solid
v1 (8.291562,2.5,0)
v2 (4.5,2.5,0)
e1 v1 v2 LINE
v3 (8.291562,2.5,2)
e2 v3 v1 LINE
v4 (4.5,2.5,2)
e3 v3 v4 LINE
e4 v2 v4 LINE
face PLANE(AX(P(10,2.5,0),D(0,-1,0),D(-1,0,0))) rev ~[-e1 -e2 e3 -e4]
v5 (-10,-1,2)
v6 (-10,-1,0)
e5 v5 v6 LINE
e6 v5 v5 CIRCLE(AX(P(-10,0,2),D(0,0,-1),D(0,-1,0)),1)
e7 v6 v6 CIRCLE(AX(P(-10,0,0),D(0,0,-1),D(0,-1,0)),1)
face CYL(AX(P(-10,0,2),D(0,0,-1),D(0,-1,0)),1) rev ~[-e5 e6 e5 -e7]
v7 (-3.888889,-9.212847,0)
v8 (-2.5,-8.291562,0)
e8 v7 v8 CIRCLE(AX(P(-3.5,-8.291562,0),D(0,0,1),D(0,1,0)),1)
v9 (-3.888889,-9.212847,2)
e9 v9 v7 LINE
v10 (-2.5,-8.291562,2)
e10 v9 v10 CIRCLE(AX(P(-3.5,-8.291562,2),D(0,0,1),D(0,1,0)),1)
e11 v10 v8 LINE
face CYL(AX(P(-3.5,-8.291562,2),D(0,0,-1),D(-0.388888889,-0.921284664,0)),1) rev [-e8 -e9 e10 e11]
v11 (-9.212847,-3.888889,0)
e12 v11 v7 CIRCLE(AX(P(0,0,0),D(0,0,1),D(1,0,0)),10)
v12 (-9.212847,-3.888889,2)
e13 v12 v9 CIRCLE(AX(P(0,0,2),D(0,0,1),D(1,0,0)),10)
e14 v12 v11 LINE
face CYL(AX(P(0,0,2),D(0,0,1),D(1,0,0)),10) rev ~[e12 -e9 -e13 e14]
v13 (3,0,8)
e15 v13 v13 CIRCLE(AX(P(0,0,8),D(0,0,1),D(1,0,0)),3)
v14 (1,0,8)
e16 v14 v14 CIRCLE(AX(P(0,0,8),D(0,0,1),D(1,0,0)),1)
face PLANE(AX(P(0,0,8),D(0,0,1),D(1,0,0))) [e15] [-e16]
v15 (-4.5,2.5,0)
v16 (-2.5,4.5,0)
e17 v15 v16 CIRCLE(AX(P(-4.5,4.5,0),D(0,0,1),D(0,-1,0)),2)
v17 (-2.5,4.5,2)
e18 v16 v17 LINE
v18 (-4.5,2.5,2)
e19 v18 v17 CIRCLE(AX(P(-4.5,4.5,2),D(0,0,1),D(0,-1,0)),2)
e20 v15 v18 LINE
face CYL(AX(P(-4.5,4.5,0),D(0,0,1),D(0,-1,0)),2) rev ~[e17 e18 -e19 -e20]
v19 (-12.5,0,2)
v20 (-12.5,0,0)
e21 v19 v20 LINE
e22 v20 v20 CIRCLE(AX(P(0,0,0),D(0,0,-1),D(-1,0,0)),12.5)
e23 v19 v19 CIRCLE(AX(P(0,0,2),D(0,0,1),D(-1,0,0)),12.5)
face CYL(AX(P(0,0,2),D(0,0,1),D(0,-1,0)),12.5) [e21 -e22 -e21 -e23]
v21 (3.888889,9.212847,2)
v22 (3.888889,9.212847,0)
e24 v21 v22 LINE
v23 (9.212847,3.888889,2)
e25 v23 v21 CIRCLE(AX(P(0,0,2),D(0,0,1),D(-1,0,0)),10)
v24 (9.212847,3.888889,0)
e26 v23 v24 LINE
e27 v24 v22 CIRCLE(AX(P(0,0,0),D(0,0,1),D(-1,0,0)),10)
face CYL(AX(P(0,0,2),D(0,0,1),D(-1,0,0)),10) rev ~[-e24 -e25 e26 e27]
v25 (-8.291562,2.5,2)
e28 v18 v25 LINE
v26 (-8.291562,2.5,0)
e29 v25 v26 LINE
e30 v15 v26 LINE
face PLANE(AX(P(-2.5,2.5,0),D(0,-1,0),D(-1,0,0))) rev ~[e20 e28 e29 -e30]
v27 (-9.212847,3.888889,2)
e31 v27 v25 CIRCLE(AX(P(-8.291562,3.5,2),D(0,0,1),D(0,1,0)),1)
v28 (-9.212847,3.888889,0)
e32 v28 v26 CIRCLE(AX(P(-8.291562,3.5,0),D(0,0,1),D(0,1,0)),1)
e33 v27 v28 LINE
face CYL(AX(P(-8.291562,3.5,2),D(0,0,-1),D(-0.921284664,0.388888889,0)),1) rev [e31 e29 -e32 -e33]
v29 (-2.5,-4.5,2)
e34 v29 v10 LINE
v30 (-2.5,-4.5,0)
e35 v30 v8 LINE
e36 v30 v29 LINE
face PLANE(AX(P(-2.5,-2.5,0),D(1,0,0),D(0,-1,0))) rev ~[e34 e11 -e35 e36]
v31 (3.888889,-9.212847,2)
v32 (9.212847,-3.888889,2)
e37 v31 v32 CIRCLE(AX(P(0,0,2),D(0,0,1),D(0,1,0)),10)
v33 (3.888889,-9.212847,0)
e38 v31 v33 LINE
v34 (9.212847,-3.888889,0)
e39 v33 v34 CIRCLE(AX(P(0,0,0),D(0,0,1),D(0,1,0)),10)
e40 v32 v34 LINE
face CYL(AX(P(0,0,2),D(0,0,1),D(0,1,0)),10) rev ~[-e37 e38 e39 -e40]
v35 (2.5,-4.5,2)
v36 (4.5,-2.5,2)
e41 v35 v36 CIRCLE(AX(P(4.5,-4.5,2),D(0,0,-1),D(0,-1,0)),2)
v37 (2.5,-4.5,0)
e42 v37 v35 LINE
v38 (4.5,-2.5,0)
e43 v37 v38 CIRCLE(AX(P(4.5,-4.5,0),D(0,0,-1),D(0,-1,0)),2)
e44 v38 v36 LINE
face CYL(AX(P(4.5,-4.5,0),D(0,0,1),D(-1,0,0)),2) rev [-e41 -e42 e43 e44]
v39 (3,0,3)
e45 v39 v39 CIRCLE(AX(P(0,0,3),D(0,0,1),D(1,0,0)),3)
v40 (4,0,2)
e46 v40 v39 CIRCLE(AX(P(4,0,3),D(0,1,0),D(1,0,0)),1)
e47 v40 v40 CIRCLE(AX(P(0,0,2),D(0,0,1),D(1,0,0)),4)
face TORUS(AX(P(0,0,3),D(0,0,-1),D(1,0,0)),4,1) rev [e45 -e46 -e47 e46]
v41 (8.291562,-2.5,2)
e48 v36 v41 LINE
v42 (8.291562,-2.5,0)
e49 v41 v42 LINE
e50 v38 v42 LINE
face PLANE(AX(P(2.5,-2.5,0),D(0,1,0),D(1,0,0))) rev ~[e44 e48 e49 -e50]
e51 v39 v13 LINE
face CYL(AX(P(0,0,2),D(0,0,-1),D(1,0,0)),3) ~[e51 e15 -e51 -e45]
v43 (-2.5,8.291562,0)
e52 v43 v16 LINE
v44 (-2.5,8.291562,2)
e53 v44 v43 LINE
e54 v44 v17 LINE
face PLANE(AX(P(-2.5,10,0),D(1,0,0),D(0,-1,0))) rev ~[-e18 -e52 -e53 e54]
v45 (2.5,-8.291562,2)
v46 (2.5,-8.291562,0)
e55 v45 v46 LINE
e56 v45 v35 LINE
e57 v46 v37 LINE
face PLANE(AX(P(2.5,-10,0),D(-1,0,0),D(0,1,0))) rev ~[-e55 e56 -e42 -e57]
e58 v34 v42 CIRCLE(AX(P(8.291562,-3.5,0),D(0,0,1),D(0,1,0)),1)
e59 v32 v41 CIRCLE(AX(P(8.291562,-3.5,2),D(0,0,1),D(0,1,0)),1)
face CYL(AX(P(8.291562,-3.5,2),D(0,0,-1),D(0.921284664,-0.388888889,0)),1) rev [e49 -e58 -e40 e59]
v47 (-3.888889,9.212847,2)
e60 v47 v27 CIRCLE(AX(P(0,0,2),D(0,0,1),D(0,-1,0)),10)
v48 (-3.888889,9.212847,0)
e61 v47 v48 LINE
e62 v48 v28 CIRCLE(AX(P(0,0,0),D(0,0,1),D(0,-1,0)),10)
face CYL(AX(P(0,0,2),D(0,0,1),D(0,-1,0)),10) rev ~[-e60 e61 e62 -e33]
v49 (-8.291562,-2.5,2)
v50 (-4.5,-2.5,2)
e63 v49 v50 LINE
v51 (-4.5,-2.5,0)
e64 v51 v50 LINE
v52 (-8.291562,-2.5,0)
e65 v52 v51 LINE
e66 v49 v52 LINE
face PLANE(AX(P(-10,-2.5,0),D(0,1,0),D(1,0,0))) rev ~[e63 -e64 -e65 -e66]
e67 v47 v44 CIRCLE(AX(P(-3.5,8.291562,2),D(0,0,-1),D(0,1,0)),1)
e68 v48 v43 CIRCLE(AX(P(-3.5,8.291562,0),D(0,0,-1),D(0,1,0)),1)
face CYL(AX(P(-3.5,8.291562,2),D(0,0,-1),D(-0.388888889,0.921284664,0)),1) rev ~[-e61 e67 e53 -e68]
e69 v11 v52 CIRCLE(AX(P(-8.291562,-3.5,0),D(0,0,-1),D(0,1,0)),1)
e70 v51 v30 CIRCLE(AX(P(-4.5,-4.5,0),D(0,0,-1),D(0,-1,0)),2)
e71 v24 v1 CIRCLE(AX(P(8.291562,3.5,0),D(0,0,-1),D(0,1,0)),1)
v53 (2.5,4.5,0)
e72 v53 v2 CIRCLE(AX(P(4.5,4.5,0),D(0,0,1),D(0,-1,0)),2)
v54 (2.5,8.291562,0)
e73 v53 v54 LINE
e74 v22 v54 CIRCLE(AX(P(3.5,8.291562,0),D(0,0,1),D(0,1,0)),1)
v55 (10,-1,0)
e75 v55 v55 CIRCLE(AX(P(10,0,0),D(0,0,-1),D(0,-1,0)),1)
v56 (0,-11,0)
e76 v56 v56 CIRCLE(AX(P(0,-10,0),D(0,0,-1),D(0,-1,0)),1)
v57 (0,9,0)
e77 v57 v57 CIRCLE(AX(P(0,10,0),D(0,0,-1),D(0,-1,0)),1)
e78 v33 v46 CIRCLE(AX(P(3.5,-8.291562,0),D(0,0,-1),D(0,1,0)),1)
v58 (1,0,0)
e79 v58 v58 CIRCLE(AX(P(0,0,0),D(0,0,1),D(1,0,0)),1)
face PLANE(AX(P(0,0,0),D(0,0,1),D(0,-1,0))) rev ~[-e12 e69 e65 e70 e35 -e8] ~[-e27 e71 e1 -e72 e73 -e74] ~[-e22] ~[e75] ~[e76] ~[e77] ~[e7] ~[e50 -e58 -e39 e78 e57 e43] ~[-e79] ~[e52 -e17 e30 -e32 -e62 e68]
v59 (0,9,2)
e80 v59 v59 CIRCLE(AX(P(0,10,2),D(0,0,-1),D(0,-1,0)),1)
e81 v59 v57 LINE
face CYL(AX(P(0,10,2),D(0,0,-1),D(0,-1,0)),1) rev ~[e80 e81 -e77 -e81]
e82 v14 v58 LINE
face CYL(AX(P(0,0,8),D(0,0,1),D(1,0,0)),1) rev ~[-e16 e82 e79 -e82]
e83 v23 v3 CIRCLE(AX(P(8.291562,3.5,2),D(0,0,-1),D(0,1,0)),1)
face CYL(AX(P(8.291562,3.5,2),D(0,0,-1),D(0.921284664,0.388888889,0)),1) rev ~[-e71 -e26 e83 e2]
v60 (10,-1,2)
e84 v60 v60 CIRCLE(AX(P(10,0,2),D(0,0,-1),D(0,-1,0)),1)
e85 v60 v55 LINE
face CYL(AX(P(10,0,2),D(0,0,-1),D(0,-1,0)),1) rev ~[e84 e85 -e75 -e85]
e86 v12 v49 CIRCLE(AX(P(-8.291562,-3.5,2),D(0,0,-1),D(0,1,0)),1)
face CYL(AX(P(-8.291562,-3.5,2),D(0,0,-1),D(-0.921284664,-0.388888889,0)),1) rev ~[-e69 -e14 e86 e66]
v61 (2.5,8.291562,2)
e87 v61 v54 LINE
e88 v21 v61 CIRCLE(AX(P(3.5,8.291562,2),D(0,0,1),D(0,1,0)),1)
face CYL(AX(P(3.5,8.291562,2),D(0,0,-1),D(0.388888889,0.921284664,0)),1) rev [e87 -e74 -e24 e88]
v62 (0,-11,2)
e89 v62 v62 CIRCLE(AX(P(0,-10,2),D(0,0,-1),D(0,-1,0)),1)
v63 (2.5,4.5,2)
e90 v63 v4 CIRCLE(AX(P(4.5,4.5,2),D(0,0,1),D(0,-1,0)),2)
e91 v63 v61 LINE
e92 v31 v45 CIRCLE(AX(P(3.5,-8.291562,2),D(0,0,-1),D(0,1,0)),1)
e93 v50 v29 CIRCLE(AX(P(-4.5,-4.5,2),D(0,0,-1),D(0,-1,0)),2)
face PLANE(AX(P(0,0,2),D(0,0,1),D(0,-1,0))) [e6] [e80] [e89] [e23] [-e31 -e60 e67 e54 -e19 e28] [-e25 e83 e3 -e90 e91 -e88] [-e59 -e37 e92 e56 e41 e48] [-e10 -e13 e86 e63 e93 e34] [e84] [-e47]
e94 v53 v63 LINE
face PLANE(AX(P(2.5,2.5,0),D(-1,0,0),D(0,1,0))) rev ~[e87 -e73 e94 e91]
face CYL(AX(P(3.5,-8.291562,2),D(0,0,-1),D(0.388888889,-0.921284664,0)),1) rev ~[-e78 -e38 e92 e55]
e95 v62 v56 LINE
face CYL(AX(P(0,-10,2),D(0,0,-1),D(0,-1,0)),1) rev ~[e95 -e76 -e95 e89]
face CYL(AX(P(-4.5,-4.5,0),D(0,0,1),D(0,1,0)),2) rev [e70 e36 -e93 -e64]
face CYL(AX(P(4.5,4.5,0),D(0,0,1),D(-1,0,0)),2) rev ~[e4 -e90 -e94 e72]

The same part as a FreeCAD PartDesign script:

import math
import FreeCAD as App
import Part
import Sketcher

V = App.Vector


def edges_at(feature, points):
    """Names of the edges that pass closest to the given points."""
    edges = feature.Shape.Edges
    near = lambda p: min(range(len(edges)), key=lambda i: edges[i].distToShape(Part.Vertex(*p))[0])
    return sorted({f"Edge{near(p) + 1}" for p in points})

doc = App.newDocument("Part")
body = doc.addObject("PartDesign::Body", "Body")

sketch1 = body.newObject("Sketcher::SketchObject", "Sketch")
sketch1.AttachmentSupport = (doc.getObject("XY_Plane"), [""])
sketch1.MapMode = "FlatFace"
sketch1.addGeometry(Part.LineSegment(V(-10, -2.5, 0), V(-2.5, -2.5, 0)), False)
sketch1.addGeometry(Part.LineSegment(V(-2.5, -2.5, 0), V(-2.5, -10, 0)), False)
sketch1.addGeometry(Part.ArcOfCircle(Part.Circle(V(0, -10, 0), V(0, 0, 1), 2.5), math.radians(180), math.radians(360)), False)
sketch1.addGeometry(Part.LineSegment(V(2.5, -10, 0), V(2.5, -2.5, 0)), False)
sketch1.addGeometry(Part.LineSegment(V(2.5, -2.5, 0), V(10, -2.5, 0)), False)
sketch1.addGeometry(Part.ArcOfCircle(Part.Circle(V(10, 0, 0), V(0, 0, 1), 2.5), math.radians(-90), math.radians(90)), False)
sketch1.addGeometry(Part.LineSegment(V(10, 2.5, 0), V(2.5, 2.5, 0)), False)
sketch1.addGeometry(Part.LineSegment(V(2.5, 2.5, 0), V(2.5, 10, 0)), False)
sketch1.addGeometry(Part.ArcOfCircle(Part.Circle(V(0, 10, 0), V(0, 0, 1), 2.5), math.radians(0), math.radians(180)), False)
sketch1.addGeometry(Part.LineSegment(V(-2.5, 10, 0), V(-2.5, 2.5, 0)), False)
sketch1.addGeometry(Part.LineSegment(V(-2.5, 2.5, 0), V(-10, 2.5, 0)), False)
sketch1.addGeometry(Part.ArcOfCircle(Part.Circle(V(-10, 0, 0), V(0, 0, 1), 2.5), math.radians(90), math.radians(270)), False)
sketch1.addConstraint(Sketcher.Constraint("Coincident", 0, 2, 1, 1))
sketch1.addConstraint(Sketcher.Constraint("Tangent", 1, 2, 2, 1))
sketch1.addConstraint(Sketcher.Constraint("Tangent", 2, 2, 3, 1))
sketch1.addConstraint(Sketcher.Constraint("Coincident", 3, 2, 4, 1))
sketch1.addConstraint(Sketcher.Constraint("Tangent", 4, 2, 5, 1))
sketch1.addConstraint(Sketcher.Constraint("Tangent", 5, 2, 6, 1))
sketch1.addConstraint(Sketcher.Constraint("Coincident", 6, 2, 7, 1))
sketch1.addConstraint(Sketcher.Constraint("Tangent", 7, 2, 8, 1))
sketch1.addConstraint(Sketcher.Constraint("Tangent", 8, 2, 9, 1))
sketch1.addConstraint(Sketcher.Constraint("Coincident", 9, 2, 10, 1))
sketch1.addConstraint(Sketcher.Constraint("Tangent", 10, 2, 11, 1))
sketch1.addConstraint(Sketcher.Constraint("Tangent", 11, 2, 0, 1))
sketch1.addConstraint(Sketcher.Constraint("Horizontal", 0))
sketch1.addConstraint(Sketcher.Constraint("Vertical", 1))
sketch1.addConstraint(Sketcher.Constraint("Vertical", 3))
sketch1.addConstraint(Sketcher.Constraint("Horizontal", 4))
sketch1.addConstraint(Sketcher.Constraint("Horizontal", 6))
sketch1.addConstraint(Sketcher.Constraint("Vertical", 7))
sketch1.addConstraint(Sketcher.Constraint("Vertical", 9))
sketch1.addConstraint(Sketcher.Constraint("Horizontal", 10))
sketch1.addConstraint(Sketcher.Constraint("Equal", 2, 5))
sketch1.addConstraint(Sketcher.Constraint("Equal", 5, 8))
sketch1.addConstraint(Sketcher.Constraint("Equal", 8, 11))
sketch1.addConstraint(Sketcher.Constraint("Symmetric", 2, 3, 8, 3, -1, 1))
sketch1.addConstraint(Sketcher.Constraint("Symmetric", 5, 3, 11, 3, -1, 1))
sketch1.addConstraint(Sketcher.Constraint("Symmetric", 0, 2, 3, 2, -2))
sketch1.addConstraint(Sketcher.Constraint("Equal", 10, 1))
sketch1.addConstraint(Sketcher.Constraint("Radius", 2, 2.5))
sketch1.addConstraint(Sketcher.Constraint("DistanceX", 0, 1, 0, 2, 7.5))
pad1 = body.newObject("PartDesign::Pad", "Pad")
pad1.Profile = sketch1
pad1.Length = 2

sketch2 = body.newObject("Sketcher::SketchObject", "Sketch001")
sketch2.AttachmentSupport = (doc.getObject("XY_Plane"), [""])
sketch2.MapMode = "FlatFace"
sketch2.AttachmentOffset = App.Placement(V(0, 0, 2), App.Rotation())
sketch2.addGeometry(Part.Circle(V(0, -10, 0), V(0, 0, 1), 1), False)
sketch2.addGeometry(Part.Circle(V(10, 0, 0), V(0, 0, 1), 1), False)
sketch2.addGeometry(Part.Circle(V(0, 10, 0), V(0, 0, 1), 1), False)
sketch2.addGeometry(Part.Circle(V(-10, 0, 0), V(0, 0, 1), 1), False)
sketch2.addConstraint(Sketcher.Constraint("Equal", 0, 1))
sketch2.addConstraint(Sketcher.Constraint("Equal", 1, 2))
sketch2.addConstraint(Sketcher.Constraint("Equal", 2, 3))
sketch2.addConstraint(Sketcher.Constraint("Symmetric", 0, 3, 2, 3, -1, 1))
sketch2.addConstraint(Sketcher.Constraint("Symmetric", 1, 3, 3, 3, -1, 1))
sketch2.addConstraint(Sketcher.Constraint("PointOnObject", 0, 3, -2))
sketch2.addConstraint(Sketcher.Constraint("PointOnObject", 1, 3, -1))
sketch2.addConstraint(Sketcher.Constraint("Diameter", 0, 2.0))
sketch2.addConstraint(Sketcher.Constraint("DistanceY", 0, 3, -1, 1, 10.0))
sketch2.addConstraint(Sketcher.Constraint("DistanceX", -1, 1, 1, 3, 10.0))
doc.recompute()
hole = body.newObject("PartDesign::Hole", "Hole")
hole.Profile = sketch2
hole.ThreadType = "None"
hole.Diameter = 2
hole.DepthType = "Dimension"
hole.Depth = 5
hole.DrillPoint = "Flat"

sketch3 = body.newObject("Sketcher::SketchObject", "Sketch002")
sketch3.AttachmentSupport = (doc.getObject("XY_Plane"), [""])
sketch3.MapMode = "FlatFace"
sketch3.AttachmentOffset = App.Placement(V(0, 0, 2), App.Rotation())
sketch3.addGeometry(Part.Circle(V(0, 0, 0), V(0, 0, 1), 3), False)
sketch3.addConstraint(Sketcher.Constraint("Coincident", 0, 3, -1, 1))
sketch3.addConstraint(Sketcher.Constraint("Diameter", 0, 6.0))
pad2 = body.newObject("PartDesign::Pad", "Pad001")
pad2.Profile = sketch3
pad2.Length = 6
doc.recompute()

fillet = body.newObject("PartDesign::Fillet", "Fillet")
fillet.Base = (pad2, edges_at(pad2, [
    (2.5, -2.5, 1),
    (-2.5, -2.5, 1),
    (-2.5, 2.5, 1),
    (2.5, 2.5, 1),
]))
fillet.Radius = 2
doc.recompute()

fillet2 = body.newObject("PartDesign::Fillet", "Fillet001")
fillet2.Base = (fillet, edges_at(fillet, [(-3, 0, 2)]))
fillet2.Radius = 1

sketch4 = body.newObject("Sketcher::SketchObject", "Sketch003")
sketch4.AttachmentSupport = (doc.getObject("XY_Plane"), [""])
sketch4.MapMode = "FlatFace"
sketch4.AttachmentOffset = App.Placement(V(0, 0, 8), App.Rotation())
sketch4.addGeometry(Part.Circle(V(0, 0, 0), V(0, 0, 1), 1), False)
sketch4.addConstraint(Sketcher.Constraint("Coincident", 0, 3, -1, 1))
sketch4.addConstraint(Sketcher.Constraint("Diameter", 0, 2.0))
pocket1 = body.newObject("PartDesign::Pocket", "Pocket")
pocket1.Profile = sketch4
pocket1.Length = 12

sketch5 = body.newObject("Sketcher::SketchObject", "Sketch004")
sketch5.AttachmentSupport = (doc.getObject("XY_Plane"), [""])
sketch5.MapMode = "FlatFace"
sketch5.AttachmentOffset = App.Placement(V(0, 0, 2), App.Rotation())
sketch5.addGeometry(Part.ArcOfCircle(Part.Circle(V(-10, 0, 0), V(0, 0, 1), 2.5), math.radians(180), math.radians(270)), False)
sketch5.addGeometry(Part.ArcOfCircle(Part.Circle(V(0, 0, 0), V(0, 0, 1), 12.5), math.radians(180), math.radians(270)), False)
sketch5.addGeometry(Part.ArcOfCircle(Part.Circle(V(0, -10, 0), V(0, 0, 1), 2.5), math.radians(180), math.radians(270)), False)
sketch5.addGeometry(Part.LineSegment(V(-2.5, -10, 0), V(-2.5, -9.682458, 0)), False)
sketch5.addGeometry(Part.ArcOfCircle(Part.Circle(V(0, 0, 0), V(0, 0, 1), 10), math.radians(-165.522488), math.radians(-104.477512)), False)
sketch5.addGeometry(Part.LineSegment(V(-9.682458, -2.5, 0), V(-10, -2.5, 0)), False)
sketch5.addConstraint(Sketcher.Constraint("Tangent", 0, 1, 1, 1))
sketch5.addConstraint(Sketcher.Constraint("Tangent", 1, 2, 2, 2))
sketch5.addConstraint(Sketcher.Constraint("Tangent", 2, 1, 3, 1))
sketch5.addConstraint(Sketcher.Constraint("Coincident", 3, 2, 4, 2))
sketch5.addConstraint(Sketcher.Constraint("Coincident", 4, 1, 5, 1))
sketch5.addConstraint(Sketcher.Constraint("Tangent", 5, 2, 0, 2))
sketch5.addConstraint(Sketcher.Constraint("Vertical", 3))
sketch5.addConstraint(Sketcher.Constraint("Horizontal", 5))
sketch5.addConstraint(Sketcher.Constraint("Coincident", 1, 3, -1, 1))
sketch5.addConstraint(Sketcher.Constraint("Coincident", 4, 3, -1, 1))
sketch5.addConstraint(Sketcher.Constraint("Equal", 0, 2))
sketch5.addConstraint(Sketcher.Constraint("PointOnObject", 0, 3, -1))
sketch5.addConstraint(Sketcher.Constraint("PointOnObject", 2, 3, -2))
sketch5.addConstraint(Sketcher.Constraint("Radius", 4, 10.0))
sketch5.addConstraint(Sketcher.Constraint("Radius", 1, 12.5))
sketch5.addConstraint(Sketcher.Constraint("Radius", 0, 2.5))
pad3 = body.newObject("PartDesign::Pad", "Pad002")
pad3.Profile = sketch5
pad3.Length = 2
pad3.Reversed = True
doc.recompute()

polarpattern = body.newObject("PartDesign::PolarPattern", "PolarPattern")
polarpattern.Originals = [pad3]
polarpattern.Axis = (doc.getObject("Z_Axis"), [""])
polarpattern.Angle = 360
polarpattern.Occurrences = 4
body.Tip = polarpattern
doc.recompute()

fillet3 = body.newObject("PartDesign::Fillet", "Fillet002")
fillet3.Base = (polarpattern, edges_at(polarpattern, [
    (-2.5, -9.682, 1),
    (-9.682, -2.5, 1),
    (-9.682, 2.5, 1),
    (-2.5, 9.682, 1),
    (2.5, 9.682, 1),
    (9.682, 2.5, 1),
    (9.682, -2.5, 1),
    (2.5, -9.682, 1),
]))
fillet3.Radius = 1

doc.recompute()
